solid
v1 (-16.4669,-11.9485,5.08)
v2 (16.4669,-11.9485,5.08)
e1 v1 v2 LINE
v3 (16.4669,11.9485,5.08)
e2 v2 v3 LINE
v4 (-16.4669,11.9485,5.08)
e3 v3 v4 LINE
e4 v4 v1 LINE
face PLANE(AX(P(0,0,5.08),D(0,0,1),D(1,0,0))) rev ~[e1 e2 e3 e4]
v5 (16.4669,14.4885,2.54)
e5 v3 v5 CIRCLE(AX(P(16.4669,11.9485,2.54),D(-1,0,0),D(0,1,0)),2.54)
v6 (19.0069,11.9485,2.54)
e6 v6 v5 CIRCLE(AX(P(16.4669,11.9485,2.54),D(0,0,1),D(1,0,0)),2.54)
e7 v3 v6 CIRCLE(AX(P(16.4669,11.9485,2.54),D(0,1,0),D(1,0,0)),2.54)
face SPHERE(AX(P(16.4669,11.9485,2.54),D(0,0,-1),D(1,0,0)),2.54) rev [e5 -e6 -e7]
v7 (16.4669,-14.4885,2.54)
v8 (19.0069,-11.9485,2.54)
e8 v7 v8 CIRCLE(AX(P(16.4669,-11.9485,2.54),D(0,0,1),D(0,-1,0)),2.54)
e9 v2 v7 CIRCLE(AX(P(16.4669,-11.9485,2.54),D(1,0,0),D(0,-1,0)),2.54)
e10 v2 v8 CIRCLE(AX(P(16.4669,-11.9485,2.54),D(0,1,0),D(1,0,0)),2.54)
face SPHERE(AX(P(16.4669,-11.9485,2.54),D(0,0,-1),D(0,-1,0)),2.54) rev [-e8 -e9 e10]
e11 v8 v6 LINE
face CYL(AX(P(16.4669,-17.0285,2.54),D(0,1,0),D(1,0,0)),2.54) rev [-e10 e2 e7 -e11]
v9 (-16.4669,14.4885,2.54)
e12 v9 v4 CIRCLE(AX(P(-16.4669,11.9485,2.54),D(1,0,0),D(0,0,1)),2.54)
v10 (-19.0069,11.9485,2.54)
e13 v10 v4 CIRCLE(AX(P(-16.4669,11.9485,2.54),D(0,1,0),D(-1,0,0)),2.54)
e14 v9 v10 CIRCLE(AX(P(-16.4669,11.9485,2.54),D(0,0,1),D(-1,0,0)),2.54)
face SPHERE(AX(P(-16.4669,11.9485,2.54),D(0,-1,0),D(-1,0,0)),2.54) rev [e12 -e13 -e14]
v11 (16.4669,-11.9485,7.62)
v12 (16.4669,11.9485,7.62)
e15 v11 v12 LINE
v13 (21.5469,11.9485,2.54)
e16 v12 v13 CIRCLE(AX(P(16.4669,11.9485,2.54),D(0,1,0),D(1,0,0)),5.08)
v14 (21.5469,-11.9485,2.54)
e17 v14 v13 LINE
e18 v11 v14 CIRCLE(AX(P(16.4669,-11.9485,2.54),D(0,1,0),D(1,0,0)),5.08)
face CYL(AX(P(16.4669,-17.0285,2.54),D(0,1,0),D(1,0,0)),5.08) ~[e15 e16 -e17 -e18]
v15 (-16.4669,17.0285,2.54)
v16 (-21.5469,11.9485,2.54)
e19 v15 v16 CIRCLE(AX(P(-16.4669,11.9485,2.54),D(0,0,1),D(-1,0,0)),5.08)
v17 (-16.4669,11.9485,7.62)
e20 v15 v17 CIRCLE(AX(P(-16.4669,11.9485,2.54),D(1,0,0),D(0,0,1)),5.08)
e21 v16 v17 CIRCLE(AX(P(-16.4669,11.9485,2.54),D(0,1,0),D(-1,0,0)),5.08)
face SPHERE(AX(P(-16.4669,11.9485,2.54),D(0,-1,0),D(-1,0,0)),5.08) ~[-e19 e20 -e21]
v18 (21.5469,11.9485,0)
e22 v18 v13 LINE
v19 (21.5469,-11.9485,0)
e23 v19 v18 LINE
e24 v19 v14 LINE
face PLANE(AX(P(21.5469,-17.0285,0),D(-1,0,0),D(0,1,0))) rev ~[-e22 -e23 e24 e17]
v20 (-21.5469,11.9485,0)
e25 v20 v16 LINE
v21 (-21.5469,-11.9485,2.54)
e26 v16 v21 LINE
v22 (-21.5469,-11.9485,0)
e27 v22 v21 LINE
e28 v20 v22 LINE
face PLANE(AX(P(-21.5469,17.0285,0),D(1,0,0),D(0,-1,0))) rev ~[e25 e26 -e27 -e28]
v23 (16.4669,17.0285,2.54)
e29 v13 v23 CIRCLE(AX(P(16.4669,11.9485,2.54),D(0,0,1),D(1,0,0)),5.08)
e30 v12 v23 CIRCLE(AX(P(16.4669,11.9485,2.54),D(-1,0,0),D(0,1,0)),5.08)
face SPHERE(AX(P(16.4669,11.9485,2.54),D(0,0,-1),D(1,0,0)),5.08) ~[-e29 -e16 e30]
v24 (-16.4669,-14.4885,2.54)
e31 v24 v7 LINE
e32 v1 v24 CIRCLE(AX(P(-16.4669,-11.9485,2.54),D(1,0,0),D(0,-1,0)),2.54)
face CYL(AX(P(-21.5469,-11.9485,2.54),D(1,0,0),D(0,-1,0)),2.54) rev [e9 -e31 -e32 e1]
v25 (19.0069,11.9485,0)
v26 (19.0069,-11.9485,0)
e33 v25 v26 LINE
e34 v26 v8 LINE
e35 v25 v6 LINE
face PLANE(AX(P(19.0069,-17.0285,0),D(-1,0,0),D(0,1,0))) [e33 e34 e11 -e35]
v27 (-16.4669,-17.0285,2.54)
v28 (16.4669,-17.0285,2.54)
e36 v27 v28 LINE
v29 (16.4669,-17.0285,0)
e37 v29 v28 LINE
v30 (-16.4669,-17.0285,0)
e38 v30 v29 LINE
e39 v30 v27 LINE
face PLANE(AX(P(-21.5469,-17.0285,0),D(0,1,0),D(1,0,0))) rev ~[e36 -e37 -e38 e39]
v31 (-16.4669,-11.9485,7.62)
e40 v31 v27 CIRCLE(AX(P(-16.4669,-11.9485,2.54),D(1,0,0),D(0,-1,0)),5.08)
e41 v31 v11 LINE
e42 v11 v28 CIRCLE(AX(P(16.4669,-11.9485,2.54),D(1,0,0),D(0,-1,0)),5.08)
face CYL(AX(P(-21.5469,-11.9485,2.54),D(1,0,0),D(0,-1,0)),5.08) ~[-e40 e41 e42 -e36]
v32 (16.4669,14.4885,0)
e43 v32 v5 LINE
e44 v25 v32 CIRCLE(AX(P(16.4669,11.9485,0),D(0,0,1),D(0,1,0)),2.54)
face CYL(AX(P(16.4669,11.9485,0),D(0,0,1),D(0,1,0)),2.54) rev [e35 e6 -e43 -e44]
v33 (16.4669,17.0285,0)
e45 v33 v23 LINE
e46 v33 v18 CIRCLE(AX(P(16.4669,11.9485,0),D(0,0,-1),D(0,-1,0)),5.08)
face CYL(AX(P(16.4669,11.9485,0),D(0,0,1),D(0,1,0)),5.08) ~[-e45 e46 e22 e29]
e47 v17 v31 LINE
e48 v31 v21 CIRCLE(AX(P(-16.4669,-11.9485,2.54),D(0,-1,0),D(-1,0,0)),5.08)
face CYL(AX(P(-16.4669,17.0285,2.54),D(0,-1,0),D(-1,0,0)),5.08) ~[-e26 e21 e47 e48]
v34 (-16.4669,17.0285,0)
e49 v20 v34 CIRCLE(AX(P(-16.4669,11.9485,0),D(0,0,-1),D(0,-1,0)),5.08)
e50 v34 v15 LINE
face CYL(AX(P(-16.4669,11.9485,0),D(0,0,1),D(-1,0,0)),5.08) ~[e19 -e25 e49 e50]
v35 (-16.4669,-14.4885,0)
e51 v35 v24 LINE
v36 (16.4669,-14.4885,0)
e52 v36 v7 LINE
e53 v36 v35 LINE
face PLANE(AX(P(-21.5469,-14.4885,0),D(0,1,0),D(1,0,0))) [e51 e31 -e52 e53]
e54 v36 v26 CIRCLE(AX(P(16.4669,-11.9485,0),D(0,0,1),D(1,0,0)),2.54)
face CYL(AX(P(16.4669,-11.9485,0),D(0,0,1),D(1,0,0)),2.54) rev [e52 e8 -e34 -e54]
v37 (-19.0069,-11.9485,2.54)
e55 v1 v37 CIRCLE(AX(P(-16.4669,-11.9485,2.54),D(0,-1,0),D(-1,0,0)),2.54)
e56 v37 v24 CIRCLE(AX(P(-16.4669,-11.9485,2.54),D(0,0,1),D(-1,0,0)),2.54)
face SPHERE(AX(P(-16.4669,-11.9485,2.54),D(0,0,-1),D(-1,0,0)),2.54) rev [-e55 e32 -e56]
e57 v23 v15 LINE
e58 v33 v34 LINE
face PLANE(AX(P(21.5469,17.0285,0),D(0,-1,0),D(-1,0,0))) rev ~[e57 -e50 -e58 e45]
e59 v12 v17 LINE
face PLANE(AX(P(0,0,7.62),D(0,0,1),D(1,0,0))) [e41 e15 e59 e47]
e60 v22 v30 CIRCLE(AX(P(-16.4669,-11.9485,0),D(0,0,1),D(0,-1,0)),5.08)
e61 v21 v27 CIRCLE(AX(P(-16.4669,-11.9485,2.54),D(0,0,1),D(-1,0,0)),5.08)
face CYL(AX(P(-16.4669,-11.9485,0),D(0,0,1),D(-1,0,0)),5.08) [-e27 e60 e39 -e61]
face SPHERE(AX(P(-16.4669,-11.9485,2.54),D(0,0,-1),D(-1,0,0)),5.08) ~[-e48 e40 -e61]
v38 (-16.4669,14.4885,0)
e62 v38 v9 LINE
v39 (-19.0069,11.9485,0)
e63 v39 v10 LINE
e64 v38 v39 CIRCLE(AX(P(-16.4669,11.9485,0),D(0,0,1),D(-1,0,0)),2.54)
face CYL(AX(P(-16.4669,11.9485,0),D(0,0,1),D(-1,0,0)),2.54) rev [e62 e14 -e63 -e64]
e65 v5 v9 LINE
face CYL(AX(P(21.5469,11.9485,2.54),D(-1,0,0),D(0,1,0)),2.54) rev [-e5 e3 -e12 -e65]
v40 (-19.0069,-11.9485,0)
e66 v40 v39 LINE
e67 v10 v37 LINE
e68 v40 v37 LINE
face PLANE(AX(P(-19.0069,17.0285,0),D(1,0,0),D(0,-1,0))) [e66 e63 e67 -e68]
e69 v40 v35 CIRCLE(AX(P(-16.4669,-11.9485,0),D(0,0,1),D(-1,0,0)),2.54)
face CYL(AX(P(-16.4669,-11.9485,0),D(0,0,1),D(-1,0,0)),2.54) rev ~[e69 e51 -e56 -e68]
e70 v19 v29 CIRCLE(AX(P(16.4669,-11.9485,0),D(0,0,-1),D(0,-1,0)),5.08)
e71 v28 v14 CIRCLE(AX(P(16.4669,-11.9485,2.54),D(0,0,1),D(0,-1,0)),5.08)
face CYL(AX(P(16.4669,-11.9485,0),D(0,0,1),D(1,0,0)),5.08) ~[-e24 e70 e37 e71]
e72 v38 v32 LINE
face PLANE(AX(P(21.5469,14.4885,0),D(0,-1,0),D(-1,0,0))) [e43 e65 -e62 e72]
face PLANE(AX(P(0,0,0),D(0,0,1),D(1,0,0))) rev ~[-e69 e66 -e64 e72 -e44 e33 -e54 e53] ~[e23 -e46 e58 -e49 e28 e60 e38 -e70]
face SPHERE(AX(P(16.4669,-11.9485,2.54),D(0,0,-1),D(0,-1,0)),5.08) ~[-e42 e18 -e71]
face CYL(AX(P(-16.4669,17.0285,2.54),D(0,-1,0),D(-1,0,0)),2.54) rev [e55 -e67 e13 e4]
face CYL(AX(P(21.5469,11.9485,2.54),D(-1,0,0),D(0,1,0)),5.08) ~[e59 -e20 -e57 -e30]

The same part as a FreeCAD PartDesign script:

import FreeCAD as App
import Part
import Sketcher
Q = App.Units.Quantity


def edges_at(feature, points):
    """Names of the edges that pass closest to the given points."""
    edges = feature.Shape.Edges
    near = lambda p: min(range(len(edges)), key=lambda i: edges[i].distToShape(Part.Vertex(*p))[0])
    return sorted({f"Edge{near(p) + 1}" for p in points})


def faces_at(feature, points):
    """Names of the faces that lie closest to the given points."""
    faces = feature.Shape.Faces
    near = lambda p: min(range(len(faces)), key=lambda i: faces[i].distToShape(Part.Vertex(*p))[0])
    return sorted({f"Face{near(p) + 1}" for p in points})


def add_polygon(sketch, points):
    """Adds a closed chain of lines whose ends are joined by coincident constraints."""
    first, n = sketch.GeometryCount, len(points)
    for a, b in zip(points, points[1:] + points[:1]):
        sketch.addGeometry(Part.LineSegment(App.Vector(*a, 0), App.Vector(*b, 0)), False)
    for i in range(n):
        sketch.addConstraint(Sketcher.Constraint("Coincident", first + i, 2, first + (i + 1) % n, 1))

doc = App.newDocument("Part")
body = doc.addObject("PartDesign::Body", "Body")

# Sketch on XY plane
sketch1 = doc.addObject("Sketcher::SketchObject", "Sketch")
body.addObject(sketch1)
sketch1.AttachmentSupport = (doc.XY_Plane, [""])
sketch1.MapMode = "FlatFace"
add_polygon(sketch1, [(-21.5469, 17.0285), (-21.5469, -17.0285), (21.5469, -17.0285), (21.5469, 17.0285)])  # lines 0-3
sketch1.addConstraint([
    Sketcher.Constraint("Vertical", 0),
    Sketcher.Constraint("Horizontal", 1),
    Sketcher.Constraint("Vertical", 2),
    Sketcher.Constraint("Horizontal", 3),
    Sketcher.Constraint("Symmetric", 0, 2, 2, 2, -1, 1),
    Sketcher.Constraint("DistanceX", 1, 1, 1, 2, Q("1.6966 in")),
    Sketcher.Constraint("DistanceY", 0, 2, 0, 1, Q("34.057 mm")),
])
pad1 = doc.addObject("PartDesign::Pad", "Pad")
body.addObject(pad1)
pad1.Profile = sketch1
pad1.Length = Q("0.3 in")
doc.recompute()

fillet = doc.addObject("PartDesign::Fillet", "Fillet")
body.addObject(fillet)
fillet.Base = (pad1, edges_at(pad1, [
    (-21.547, -17.029, 3.81),
    (-21.547, 0, 7.62),
    (-21.547, 17.029, 3.81),
    (21.547, 17.029, 3.81),
    (21.547, -17.029, 3.81),
    (0, -17.029, 7.62),
    (21.547, 0, 7.62),
    (0, 17.029, 7.62),
]))
fillet.Radius = Q("0.2 in")
doc.recompute()

thickness = doc.addObject("PartDesign::Thickness", "Thickness")
body.addObject(thickness)
thickness.Base = (fillet, faces_at(fillet, [(5.489, -5.676, 0)]))
thickness.Value = Q("0.1 in")
thickness.Reversed = True
thickness.Join = "Intersection"

doc.recompute()
